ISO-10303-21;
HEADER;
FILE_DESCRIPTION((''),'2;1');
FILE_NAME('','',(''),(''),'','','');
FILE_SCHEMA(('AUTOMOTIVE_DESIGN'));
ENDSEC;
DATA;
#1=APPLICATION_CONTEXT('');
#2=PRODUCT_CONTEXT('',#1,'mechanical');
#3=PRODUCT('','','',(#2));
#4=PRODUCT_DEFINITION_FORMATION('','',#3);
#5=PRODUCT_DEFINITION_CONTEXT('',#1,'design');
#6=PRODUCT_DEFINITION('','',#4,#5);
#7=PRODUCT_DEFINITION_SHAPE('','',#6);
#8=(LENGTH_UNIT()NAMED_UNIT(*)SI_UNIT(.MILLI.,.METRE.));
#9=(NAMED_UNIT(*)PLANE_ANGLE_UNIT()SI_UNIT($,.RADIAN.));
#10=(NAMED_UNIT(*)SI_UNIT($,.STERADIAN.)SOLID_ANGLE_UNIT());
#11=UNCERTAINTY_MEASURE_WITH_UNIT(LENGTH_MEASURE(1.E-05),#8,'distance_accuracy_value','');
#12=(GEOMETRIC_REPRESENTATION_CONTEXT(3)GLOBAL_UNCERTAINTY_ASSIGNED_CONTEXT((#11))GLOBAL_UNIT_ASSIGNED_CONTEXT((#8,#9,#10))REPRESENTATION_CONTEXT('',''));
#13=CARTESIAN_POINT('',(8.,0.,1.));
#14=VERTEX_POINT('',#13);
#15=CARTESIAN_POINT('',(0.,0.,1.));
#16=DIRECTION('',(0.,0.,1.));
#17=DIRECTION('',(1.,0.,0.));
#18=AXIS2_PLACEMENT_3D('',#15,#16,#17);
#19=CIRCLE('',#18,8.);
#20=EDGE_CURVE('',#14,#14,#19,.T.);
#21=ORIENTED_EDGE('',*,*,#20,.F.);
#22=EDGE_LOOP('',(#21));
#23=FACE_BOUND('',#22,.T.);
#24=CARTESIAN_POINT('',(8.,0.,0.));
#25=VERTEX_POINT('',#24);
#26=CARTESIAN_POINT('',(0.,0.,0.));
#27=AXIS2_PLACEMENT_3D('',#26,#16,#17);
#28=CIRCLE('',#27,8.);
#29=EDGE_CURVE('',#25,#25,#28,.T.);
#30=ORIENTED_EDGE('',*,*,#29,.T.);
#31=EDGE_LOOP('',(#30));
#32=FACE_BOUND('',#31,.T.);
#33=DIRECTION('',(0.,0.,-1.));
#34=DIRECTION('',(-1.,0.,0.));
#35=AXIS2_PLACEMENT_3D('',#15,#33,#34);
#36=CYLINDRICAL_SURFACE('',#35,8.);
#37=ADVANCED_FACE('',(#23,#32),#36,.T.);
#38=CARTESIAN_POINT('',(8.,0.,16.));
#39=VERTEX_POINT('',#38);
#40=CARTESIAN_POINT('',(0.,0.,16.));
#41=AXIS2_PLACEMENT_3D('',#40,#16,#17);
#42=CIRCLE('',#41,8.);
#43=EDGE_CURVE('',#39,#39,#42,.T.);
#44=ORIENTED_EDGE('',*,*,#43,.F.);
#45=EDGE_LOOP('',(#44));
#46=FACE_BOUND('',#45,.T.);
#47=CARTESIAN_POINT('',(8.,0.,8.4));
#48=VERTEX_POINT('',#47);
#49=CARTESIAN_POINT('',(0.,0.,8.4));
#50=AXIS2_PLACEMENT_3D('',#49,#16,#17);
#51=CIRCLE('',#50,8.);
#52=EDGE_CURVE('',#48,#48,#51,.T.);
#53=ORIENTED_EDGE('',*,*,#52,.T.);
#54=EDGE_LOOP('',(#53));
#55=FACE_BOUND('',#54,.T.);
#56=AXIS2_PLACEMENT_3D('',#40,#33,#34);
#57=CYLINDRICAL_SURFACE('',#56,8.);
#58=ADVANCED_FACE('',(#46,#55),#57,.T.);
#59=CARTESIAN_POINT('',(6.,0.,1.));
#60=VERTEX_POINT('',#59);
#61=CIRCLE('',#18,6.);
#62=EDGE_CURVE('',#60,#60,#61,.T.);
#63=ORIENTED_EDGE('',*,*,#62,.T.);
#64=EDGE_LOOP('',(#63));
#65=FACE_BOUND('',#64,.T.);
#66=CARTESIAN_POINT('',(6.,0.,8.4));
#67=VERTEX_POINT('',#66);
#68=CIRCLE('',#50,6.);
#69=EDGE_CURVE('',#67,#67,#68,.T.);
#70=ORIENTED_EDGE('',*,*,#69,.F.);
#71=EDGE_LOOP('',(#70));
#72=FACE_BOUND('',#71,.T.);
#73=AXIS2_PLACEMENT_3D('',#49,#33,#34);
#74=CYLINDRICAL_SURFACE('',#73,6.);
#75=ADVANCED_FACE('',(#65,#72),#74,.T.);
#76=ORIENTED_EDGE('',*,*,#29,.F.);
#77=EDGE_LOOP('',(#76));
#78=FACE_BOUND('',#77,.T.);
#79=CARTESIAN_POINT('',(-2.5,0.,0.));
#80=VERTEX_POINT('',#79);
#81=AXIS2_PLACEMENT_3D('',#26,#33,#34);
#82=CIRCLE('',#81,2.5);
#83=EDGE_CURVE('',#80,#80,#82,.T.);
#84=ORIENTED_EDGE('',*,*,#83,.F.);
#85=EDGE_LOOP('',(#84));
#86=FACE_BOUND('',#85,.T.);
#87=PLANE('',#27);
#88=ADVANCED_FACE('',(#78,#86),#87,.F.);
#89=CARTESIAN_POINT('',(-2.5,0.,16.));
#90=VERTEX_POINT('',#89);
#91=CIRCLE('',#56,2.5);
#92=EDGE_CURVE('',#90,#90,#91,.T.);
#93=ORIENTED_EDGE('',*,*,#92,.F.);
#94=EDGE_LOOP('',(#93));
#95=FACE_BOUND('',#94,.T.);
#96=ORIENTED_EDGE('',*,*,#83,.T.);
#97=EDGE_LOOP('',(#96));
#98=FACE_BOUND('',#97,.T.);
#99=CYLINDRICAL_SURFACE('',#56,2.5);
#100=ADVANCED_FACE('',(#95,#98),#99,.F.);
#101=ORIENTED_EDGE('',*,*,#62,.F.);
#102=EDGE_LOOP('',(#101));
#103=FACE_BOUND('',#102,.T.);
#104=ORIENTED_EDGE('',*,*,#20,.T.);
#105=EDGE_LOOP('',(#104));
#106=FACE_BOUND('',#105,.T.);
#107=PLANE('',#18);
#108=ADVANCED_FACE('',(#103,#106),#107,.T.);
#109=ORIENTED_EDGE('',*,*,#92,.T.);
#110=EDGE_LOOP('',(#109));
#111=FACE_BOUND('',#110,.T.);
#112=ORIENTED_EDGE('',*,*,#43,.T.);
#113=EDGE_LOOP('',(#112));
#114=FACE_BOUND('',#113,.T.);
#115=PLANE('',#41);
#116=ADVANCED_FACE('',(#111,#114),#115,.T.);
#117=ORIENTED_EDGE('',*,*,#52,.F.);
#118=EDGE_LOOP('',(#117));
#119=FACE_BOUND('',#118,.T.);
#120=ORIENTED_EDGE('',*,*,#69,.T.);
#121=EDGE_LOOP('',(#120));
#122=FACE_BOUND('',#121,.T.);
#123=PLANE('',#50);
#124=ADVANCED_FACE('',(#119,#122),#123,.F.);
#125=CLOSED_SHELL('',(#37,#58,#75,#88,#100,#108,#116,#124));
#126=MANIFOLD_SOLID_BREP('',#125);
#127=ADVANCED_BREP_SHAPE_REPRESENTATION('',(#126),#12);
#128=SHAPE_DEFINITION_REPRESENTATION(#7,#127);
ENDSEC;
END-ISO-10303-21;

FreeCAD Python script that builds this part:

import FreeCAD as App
import Part
import Sketcher
from FreeCAD import Vector

doc = App.newDocument("Part")
body = doc.addObject("PartDesign::Body", "Body")

# Sketch on XY plane
sketch1 = body.newObject("Sketcher::SketchObject", "Sketch")
sketch1.AttachmentSupport = (doc.getObject("XY_Plane"), [""])
sketch1.MapMode = "FlatFace"
sketch1.addGeometry(Part.Circle(Vector(0, 0, 0), Vector(0, 0, 1), 8), False)
sketch1.addConstraint([
    Sketcher.Constraint("Coincident", 0, 3, -1, 1),
    Sketcher.Constraint("Diameter", 0, 16.0),
])
pad1 = body.newObject("PartDesign::Pad", "Pad")
pad1.Profile = sketch1
pad1.Length = 1

# Sketch on XY plane
sketch2 = body.newObject("Sketcher::SketchObject", "Sketch001")
sketch2.AttachmentSupport = (doc.getObject("XY_Plane"), [""])
sketch2.MapMode = "FlatFace"
sketch2.AttachmentOffset = App.Placement(Vector(0, 0, 1), App.Rotation())
sketch2.addGeometry(Part.Circle(Vector(0, 0, 0), Vector(0, 0, 1), 6), False)
sketch2.addConstraint([
    Sketcher.Constraint("Coincident", 0, 3, -1, 1),
    Sketcher.Constraint("Diameter", 0, 12.0),
])
pad2 = body.newObject("PartDesign::Pad", "Pad001")
pad2.Profile = sketch2
pad2.Length = 7.4

# Sketch on XY plane
sketch3 = body.newObject("Sketcher::SketchObject", "Sketch002")
sketch3.AttachmentSupport = (doc.getObject("XY_Plane"), [""])
sketch3.MapMode = "FlatFace"
sketch3.AttachmentOffset = App.Placement(Vector(0, 0, 8.4), App.Rotation())
sketch3.addGeometry(Part.Circle(Vector(0, 0, 0), Vector(0, 0, 1), 8), False)
sketch3.addConstraint([
    Sketcher.Constraint("Coincident", 0, 3, -1, 1),
    Sketcher.Constraint("Diameter", 0, 16.0),
])
pad3 = body.newObject("PartDesign::Pad", "Pad002")
pad3.Profile = sketch3
pad3.Length = 7.6

# Sketch on XY plane
sketch4 = body.newObject("Sketcher::SketchObject", "Sketch003")
sketch4.AttachmentSupport = (doc.getObject("XY_Plane"), [""])
sketch4.MapMode = "FlatFace"
sketch4.addGeometry(Part.Circle(Vector(0, 0, 0), Vector(0, 0, 1), 2.5), False)
sketch4.addConstraint([
    Sketcher.Constraint("Coincident", 0, 3, -1, 1),
    Sketcher.Constraint("Diameter", 0, 5.0),
])
pocket1 = body.newObject("PartDesign::Pocket", "Pocket")
pocket1.Profile = sketch4
pocket1.Type = "ThroughAll"
pocket1.Reversed = True

doc.recompute()
